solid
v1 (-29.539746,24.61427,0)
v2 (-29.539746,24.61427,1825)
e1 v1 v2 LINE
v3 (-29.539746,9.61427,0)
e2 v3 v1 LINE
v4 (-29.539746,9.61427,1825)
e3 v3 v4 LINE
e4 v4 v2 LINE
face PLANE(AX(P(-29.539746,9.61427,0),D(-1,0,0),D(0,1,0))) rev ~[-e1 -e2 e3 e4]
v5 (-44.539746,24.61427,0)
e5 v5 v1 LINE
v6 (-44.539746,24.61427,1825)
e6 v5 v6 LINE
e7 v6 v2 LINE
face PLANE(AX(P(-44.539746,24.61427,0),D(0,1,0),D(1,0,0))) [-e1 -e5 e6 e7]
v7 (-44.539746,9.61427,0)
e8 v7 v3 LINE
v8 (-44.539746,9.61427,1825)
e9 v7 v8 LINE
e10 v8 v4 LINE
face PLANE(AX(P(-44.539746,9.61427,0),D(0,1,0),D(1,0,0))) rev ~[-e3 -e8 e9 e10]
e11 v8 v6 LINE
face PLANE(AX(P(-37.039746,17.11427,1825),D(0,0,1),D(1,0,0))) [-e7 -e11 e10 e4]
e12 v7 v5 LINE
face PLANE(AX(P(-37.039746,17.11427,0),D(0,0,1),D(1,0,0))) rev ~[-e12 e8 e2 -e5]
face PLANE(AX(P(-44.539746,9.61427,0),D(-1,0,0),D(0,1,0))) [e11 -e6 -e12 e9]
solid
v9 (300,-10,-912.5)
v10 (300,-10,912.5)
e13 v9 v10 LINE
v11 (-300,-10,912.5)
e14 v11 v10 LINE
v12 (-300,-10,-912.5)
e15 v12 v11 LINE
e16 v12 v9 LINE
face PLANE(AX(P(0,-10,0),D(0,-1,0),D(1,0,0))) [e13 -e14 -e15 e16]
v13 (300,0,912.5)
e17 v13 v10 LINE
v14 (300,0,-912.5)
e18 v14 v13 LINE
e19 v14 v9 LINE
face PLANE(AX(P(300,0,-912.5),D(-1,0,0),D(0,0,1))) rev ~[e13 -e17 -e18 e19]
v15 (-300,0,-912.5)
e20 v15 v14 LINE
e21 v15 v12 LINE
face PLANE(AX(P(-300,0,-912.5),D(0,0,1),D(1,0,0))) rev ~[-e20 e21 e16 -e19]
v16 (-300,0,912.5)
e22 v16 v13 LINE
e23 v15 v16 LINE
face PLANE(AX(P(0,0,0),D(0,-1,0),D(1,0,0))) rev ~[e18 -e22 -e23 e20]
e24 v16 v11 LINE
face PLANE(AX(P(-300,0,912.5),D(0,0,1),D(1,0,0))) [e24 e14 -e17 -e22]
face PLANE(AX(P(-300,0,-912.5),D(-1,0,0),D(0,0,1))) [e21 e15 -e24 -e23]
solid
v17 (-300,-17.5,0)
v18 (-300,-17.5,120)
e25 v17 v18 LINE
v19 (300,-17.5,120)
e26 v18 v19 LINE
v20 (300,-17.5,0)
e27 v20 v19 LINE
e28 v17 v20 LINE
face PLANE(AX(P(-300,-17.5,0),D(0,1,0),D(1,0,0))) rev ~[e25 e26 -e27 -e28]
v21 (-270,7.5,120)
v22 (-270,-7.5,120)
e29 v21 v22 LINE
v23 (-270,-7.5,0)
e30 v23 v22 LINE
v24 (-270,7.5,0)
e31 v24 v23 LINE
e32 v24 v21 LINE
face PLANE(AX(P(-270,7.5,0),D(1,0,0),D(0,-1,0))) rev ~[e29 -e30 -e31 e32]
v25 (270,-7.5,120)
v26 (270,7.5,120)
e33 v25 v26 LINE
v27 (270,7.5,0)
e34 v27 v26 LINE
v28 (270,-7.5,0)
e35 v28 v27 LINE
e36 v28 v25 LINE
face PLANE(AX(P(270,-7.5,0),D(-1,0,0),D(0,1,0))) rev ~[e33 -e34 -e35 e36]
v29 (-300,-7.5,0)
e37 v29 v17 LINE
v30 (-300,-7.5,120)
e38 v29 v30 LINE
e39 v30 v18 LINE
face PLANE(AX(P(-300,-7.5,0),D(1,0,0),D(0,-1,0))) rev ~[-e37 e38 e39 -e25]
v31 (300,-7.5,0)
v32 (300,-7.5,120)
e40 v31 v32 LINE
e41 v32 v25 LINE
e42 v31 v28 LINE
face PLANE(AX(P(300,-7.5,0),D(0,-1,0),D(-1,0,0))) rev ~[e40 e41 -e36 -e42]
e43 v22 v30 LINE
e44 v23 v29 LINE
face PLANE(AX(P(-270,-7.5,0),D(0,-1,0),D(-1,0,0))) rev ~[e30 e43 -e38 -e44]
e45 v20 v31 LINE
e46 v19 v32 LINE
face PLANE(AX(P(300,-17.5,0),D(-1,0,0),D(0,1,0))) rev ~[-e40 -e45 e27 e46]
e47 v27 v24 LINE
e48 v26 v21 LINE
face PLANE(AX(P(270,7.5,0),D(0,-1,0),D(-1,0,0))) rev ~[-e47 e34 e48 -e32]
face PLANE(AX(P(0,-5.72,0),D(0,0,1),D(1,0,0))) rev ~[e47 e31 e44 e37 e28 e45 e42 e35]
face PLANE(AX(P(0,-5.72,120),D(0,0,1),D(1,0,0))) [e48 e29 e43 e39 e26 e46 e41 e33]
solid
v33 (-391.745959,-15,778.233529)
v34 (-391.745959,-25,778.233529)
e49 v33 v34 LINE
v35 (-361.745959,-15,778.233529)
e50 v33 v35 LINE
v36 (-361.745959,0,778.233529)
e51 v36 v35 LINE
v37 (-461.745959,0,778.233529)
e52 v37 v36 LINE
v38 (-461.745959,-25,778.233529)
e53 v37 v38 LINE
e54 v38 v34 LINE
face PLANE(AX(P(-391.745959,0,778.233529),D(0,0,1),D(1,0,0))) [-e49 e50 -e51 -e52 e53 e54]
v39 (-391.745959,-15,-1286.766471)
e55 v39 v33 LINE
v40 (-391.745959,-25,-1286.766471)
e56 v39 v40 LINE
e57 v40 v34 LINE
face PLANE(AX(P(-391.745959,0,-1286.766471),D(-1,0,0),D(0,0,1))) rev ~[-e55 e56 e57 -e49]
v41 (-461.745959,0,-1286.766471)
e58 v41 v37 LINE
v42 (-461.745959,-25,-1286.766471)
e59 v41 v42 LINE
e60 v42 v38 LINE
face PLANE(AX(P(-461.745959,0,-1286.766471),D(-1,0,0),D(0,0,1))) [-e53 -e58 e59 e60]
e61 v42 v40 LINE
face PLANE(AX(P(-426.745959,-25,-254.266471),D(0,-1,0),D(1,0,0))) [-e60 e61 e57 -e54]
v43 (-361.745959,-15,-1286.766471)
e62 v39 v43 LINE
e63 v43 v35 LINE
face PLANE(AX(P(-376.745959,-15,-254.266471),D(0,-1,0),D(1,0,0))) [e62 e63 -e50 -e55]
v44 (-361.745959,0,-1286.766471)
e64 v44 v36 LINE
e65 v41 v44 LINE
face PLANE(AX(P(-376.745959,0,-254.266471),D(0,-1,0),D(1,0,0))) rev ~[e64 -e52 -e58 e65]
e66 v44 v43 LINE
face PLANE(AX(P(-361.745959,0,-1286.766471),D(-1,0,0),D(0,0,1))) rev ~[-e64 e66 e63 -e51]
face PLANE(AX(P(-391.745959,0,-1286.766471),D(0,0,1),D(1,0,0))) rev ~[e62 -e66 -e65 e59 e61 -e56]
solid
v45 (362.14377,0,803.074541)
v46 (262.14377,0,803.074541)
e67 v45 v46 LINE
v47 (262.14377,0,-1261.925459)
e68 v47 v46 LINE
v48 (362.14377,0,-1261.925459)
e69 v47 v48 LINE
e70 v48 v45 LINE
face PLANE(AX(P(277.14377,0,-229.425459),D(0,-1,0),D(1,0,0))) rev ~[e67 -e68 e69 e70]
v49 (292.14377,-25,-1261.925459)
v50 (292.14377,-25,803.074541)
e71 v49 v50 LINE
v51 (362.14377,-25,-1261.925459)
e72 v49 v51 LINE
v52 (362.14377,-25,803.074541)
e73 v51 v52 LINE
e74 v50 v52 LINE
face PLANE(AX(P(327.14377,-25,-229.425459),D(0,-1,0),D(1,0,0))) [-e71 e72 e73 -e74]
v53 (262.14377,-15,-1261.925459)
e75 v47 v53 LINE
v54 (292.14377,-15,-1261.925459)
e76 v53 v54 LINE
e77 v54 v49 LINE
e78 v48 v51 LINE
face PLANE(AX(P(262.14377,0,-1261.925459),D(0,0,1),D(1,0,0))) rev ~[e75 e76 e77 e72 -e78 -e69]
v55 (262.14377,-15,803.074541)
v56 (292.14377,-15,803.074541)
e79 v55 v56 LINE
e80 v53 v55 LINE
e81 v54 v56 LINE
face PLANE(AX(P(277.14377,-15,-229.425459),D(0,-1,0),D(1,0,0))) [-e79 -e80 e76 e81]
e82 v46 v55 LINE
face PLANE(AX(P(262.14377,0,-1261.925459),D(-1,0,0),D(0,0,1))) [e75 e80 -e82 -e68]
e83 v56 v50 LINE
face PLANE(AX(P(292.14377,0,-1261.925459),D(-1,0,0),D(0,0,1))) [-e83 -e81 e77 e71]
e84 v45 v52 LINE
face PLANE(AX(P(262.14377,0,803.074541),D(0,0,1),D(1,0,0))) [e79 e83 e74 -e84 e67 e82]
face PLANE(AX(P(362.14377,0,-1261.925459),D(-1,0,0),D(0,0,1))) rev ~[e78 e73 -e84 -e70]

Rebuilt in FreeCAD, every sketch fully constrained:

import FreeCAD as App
import Part
import Sketcher

V = App.Vector


def add_polygon(sketch, points):
    """Adds a closed chain of lines whose ends are joined by coincident constraints."""
    first, n = sketch.GeometryCount, len(points)
    for a, b in zip(points, points[1:] + points[:1]):
        sketch.addGeometry(Part.LineSegment(App.Vector(*a, 0), App.Vector(*b, 0)), False)
    for i in range(n):
        sketch.addConstraint(Sketcher.Constraint("Coincident", first + i, 2, first + (i + 1) % n, 1))

doc = App.newDocument("Part")
body = doc.addObject("PartDesign::Body", "Body")

# Sketch on XY plane
sketch1 = body.newObject("Sketcher::SketchObject", "Sketch")
sketch1.AttachmentSupport = (doc.getObject("XY_Plane"), [""])
sketch1.MapMode = "FlatFace"
add_polygon(sketch1, [(270, 8), (-270, 8), (-270, -8), (-300, -8), (-300, -18), (300, -18), (300, -8), (270, -8)])  # lines 0-7
sketch1.addConstraint([
    Sketcher.Constraint("Horizontal", 0),
    Sketcher.Constraint("Vertical", 1),
    Sketcher.Constraint("Horizontal", 2),
    Sketcher.Constraint("Vertical", 3),
    Sketcher.Constraint("Horizontal", 4),
    Sketcher.Constraint("Vertical", 5),
    Sketcher.Constraint("Horizontal", 6),
    Sketcher.Constraint("Vertical", 7),
    Sketcher.Constraint("Symmetric", 0, 2, 6, 2, -1, 1),
    Sketcher.Constraint("Symmetric", 2, 2, 5, 2, -2),
    Sketcher.Constraint("DistanceX", 0, 2, 0, 1, 540.0),
    Sketcher.Constraint("DistanceX", 2, 2, 2, 1, 30.0),
    Sketcher.Constraint("DistanceY", 1, 2, 1, 1, 15.0),
    Sketcher.Constraint("DistanceY", 3, 2, 3, 1, 10.0),
])
pad1 = body.newObject("PartDesign::Pad", "Pad")
pad1.Profile = sketch1
pad1.Length = 120
body2 = doc.addObject("PartDesign::Body", "Body001")

# Sketch on XZ plane
sketch2 = body2.newObject("Sketcher::SketchObject", "Sketch001")
sketch2.AttachmentSupport = (doc.getObject("XZ_Plane001"), [""])
sketch2.MapMode = "FlatFace"
add_polygon(sketch2, [(-462, 778), (-462, -1287), (-392, -1287), (-392, 778)])  # lines 0-3
sketch2.addConstraint([
    Sketcher.Constraint("Vertical", 0),
    Sketcher.Constraint("Horizontal", 1),
    Sketcher.Constraint("Vertical", 2),
    Sketcher.Constraint("Horizontal", 3),
    Sketcher.Constraint("DistanceX", 1, 1, 1, 2, 70.0),
    Sketcher.Constraint("DistanceY", 0, 2, 0, 1, 2065.0),
    Sketcher.Constraint("DistanceX", 0, 2, -1, 1, 461.745959),
    Sketcher.Constraint("DistanceY", 0, 2, -1, 1, 1286.766471),
])
pad2 = body2.newObject("PartDesign::Pad", "Pad001")
pad2.Profile = sketch2
pad2.Length = 25

# Sketch on XZ plane
sketch3 = body2.newObject("Sketcher::SketchObject", "Sketch002")
sketch3.AttachmentSupport = (doc.getObject("XZ_Plane001"), [""])
sketch3.MapMode = "FlatFace"
add_polygon(sketch3, [(-392, 778), (-392, -1287), (-362, -1287), (-362, 778)])  # lines 0-3
sketch3.addConstraint([
    Sketcher.Constraint("Vertical", 0),
    Sketcher.Constraint("Horizontal", 1),
    Sketcher.Constraint("Vertical", 2),
    Sketcher.Constraint("Horizontal", 3),
    Sketcher.Constraint("DistanceX", 1, 1, 1, 2, 30.0),
    Sketcher.Constraint("DistanceY", 0, 2, 0, 1, 2065.0),
    Sketcher.Constraint("DistanceX", 0, 2, -1, 1, 391.745959),
    Sketcher.Constraint("DistanceY", 0, 2, -1, 1, 1286.766471),
])
pad3 = body2.newObject("PartDesign::Pad", "Pad002")
pad3.Profile = sketch3
pad3.Length = 15
body3 = doc.addObject("PartDesign::Body", "Body002")

# Sketch on XZ plane
sketch4 = body3.newObject("Sketcher::SketchObject", "Sketch003")
sketch4.AttachmentSupport = (doc.getObject("XZ_Plane002"), [""])
sketch4.MapMode = "FlatFace"
add_polygon(sketch4, [(292, 803), (292, -1262), (362, -1262), (362, 803)])  # lines 0-3
sketch4.addConstraint([
    Sketcher.Constraint("Vertical", 0),
    Sketcher.Constraint("Horizontal", 1),
    Sketcher.Constraint("Vertical", 2),
    Sketcher.Constraint("Horizontal", 3),
    Sketcher.Constraint("DistanceX", 1, 1, 1, 2, 70.0),
    Sketcher.Constraint("DistanceY", 0, 2, 0, 1, 2065.0),
    Sketcher.Constraint("DistanceX", -1, 1, 0, 2, 292.14377),
    Sketcher.Constraint("DistanceY", 0, 2, -1, 1, 1261.925459),
])
pad4 = body3.newObject("PartDesign::Pad", "Pad003")
pad4.Profile = sketch4
pad4.Length = 25

# Sketch on XZ plane
sketch5 = body3.newObject("Sketcher::SketchObject", "Sketch004")
sketch5.AttachmentSupport = (doc.getObject("XZ_Plane002"), [""])
sketch5.MapMode = "FlatFace"
add_polygon(sketch5, [(262, 803), (262, -1262), (292, -1262), (292, 803)])  # lines 0-3
sketch5.addConstraint([
    Sketcher.Constraint("Vertical", 0),
    Sketcher.Constraint("Horizontal", 1),
    Sketcher.Constraint("Vertical", 2),
    Sketcher.Constraint("Horizontal", 3),
    Sketcher.Constraint("DistanceX", 1, 1, 1, 2, 30.0),
    Sketcher.Constraint("DistanceY", 0, 2, 0, 1, 2065.0),
    Sketcher.Constraint("DistanceX", -1, 1, 0, 2, 262.14377),
    Sketcher.Constraint("DistanceY", 0, 2, -1, 1, 1261.925459),
])
pad5 = body3.newObject("PartDesign::Pad", "Pad004")
pad5.Profile = sketch5
pad5.Length = 15
body4 = doc.addObject("PartDesign::Body", "Body003")

# Sketch on XZ plane
sketch6 = body4.newObject("Sketcher::SketchObject", "Sketch005")
sketch6.AttachmentSupport = (doc.getObject("XZ_Plane003"), [""])
sketch6.MapMode = "FlatFace"
add_polygon(sketch6, [(-300, 912), (-300, -912), (300, -912), (300, 912)])  # lines 0-3
sketch6.addConstraint([
    Sketcher.Constraint("Vertical", 0),
    Sketcher.Constraint("Horizontal", 1),
    Sketcher.Constraint("Vertical", 2),
    Sketcher.Constraint("Horizontal", 3),
    Sketcher.Constraint("Symmetric", 0, 2, 2, 2, -1, 1),
    Sketcher.Constraint("DistanceX", 1, 1, 1, 2, 600.0),
    Sketcher.Constraint("DistanceY", 0, 2, 0, 1, 1825.0),
])
pad6 = body4.newObject("PartDesign::Pad", "Pad005")
pad6.Profile = sketch6
pad6.Length = 10
body5 = doc.addObject("PartDesign::Body", "Body004")

# Sketch on XY plane
sketch7 = body5.newObject("Sketcher::SketchObject", "Sketch006")
sketch7.AttachmentSupport = (doc.getObject("XY_Plane004"), [""])
sketch7.MapMode = "FlatFace"
add_polygon(sketch7, [(-45, 25), (-45, 10), (-30, 10), (-30, 25)])  # lines 0-3
sketch7.addConstraint([
    Sketcher.Constraint("Vertical", 0),
    Sketcher.Constraint("Horizontal", 1),
    Sketcher.Constraint("Vertical", 2),
    Sketcher.Constraint("Horizontal", 3),
    Sketcher.Constraint("Equal", 3, 0),
    Sketcher.Constraint("DistanceX", 1, 1, 1, 2, 15.0),
    Sketcher.Constraint("DistanceY", -1, 1, 0, 2, 9.61427),
    Sketcher.Constraint("DistanceX", 0, 2, -1, 1, 44.539746),
])
pad7 = body5.newObject("PartDesign::Pad", "Pad006")
pad7.Profile = sketch7
pad7.Length = 1825

doc.recompute()
